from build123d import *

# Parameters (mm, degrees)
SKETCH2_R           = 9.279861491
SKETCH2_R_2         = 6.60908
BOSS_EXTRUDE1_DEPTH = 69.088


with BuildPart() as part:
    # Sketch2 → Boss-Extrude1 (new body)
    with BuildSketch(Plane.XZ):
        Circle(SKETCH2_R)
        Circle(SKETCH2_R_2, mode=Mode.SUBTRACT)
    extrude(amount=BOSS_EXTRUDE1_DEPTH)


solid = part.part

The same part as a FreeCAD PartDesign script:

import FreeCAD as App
import Part
import Sketcher
from FreeCAD import Vector
Q = App.Units.Quantity

doc = App.newDocument("Part")
body = doc.addObject("PartDesign::Body", "Body")

# Sketch on XZ plane
sketch1 = doc.addObject("Sketcher::SketchObject", "Sketch")
body.addObject(sketch1)
sketch1.AttachmentSupport = (doc.XZ_Plane, [""])
sketch1.MapMode = "FlatFace"
sketch1.addGeometry(Part.Circle(Vector(0, 0, 0), Vector(0, 0, 1), 9), False)
sketch1.addGeometry(Part.Circle(Vector(0, 0, 0), Vector(0, 0, 1), 7), False)
sketch1.addConstraint(Sketcher.Constraint("Coincident", 0, 3, -1, 1))
sketch1.addConstraint(Sketcher.Constraint("Coincident", 1, 3, -1, 1))
sketch1.addConstraint(Sketcher.Constraint("Diameter", 1, Q("0.5204 in")))
sketch1.addConstraint(Sketcher.Constraint("Diameter", 0, 18.559723))
pad1 = doc.addObject("PartDesign::Pad", "Pad")
body.addObject(pad1)
pad1.Profile = sketch1
pad1.Length = Q("2.72 in")

doc.recompute()
